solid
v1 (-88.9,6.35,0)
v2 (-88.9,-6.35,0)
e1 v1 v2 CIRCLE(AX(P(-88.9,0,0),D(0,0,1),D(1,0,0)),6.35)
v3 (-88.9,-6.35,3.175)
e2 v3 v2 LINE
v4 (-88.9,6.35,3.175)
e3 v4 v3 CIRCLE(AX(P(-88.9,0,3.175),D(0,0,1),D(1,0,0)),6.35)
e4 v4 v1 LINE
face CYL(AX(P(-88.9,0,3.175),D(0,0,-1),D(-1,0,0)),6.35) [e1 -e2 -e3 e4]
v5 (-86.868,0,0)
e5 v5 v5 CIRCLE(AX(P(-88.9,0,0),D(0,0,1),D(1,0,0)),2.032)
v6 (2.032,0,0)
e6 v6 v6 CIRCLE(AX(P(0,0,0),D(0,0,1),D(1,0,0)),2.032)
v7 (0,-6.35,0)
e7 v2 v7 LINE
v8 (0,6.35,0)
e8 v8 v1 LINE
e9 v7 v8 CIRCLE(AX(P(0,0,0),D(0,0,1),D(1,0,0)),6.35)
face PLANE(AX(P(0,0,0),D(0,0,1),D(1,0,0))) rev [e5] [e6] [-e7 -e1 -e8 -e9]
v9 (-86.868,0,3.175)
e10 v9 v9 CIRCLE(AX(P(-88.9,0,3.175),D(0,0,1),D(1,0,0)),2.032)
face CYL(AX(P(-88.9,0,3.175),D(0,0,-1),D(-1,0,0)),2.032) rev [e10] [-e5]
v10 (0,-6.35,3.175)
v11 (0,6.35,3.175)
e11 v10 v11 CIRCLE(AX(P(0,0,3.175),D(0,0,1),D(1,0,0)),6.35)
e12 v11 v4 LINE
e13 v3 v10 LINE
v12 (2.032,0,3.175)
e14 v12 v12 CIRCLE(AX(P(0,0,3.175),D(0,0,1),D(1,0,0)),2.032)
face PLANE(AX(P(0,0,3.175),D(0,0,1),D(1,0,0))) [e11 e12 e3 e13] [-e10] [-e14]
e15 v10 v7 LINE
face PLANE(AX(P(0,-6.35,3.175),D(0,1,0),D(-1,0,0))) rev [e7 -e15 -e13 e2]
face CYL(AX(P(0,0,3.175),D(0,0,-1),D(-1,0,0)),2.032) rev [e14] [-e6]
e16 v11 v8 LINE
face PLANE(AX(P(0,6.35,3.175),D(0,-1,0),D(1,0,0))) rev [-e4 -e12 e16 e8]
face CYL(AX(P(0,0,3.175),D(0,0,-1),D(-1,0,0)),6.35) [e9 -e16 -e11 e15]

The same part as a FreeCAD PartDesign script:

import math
import FreeCAD as App
import Part
import Sketcher
from FreeCAD import Vector
Q = App.Units.Quantity

doc = App.newDocument("Part")
body = doc.addObject("PartDesign::Body", "Body")

sketch1 = body.newObject("Sketcher::SketchObject", "Sketch")
sketch1.AttachmentSupport = (doc.getObject("XY_Plane"), [""])
sketch1.MapMode = "FlatFace"
sketch1.addGeometry([
    Part.LineSegment(Vector(-88.9, -6.3, 0), Vector(0, -6.3, 0)),
    Part.ArcOfCircle(Part.Circle(Vector(0, 0, 0), Vector(0, 0, 1), 6.3), math.radians(-90), math.radians(90)),
    Part.LineSegment(Vector(0, 6.3, 0), Vector(-88.9, 6.3, 0)),
    Part.ArcOfCircle(Part.Circle(Vector(-88.9, 0, 0), Vector(0, 0, 1), 6.3), math.radians(90), math.radians(270)),
    Part.Circle(Vector(0, 0, 0), Vector(0, 0, 1), 2),
    Part.Circle(Vector(-88.9, 0, 0), Vector(0, 0, 1), 2),
], False)
sketch1.addConstraint([
    Sketcher.Constraint("Tangent", 0, 2, 1, 1),
    Sketcher.Constraint("Tangent", 1, 2, 2, 1),
    Sketcher.Constraint("Tangent", 2, 2, 3, 1),
    Sketcher.Constraint("Tangent", 3, 2, 0, 1),
    Sketcher.Constraint("Horizontal", 0),
    Sketcher.Constraint("Horizontal", 2),
    Sketcher.Constraint("Coincident", 1, 3, -1, 1),
    Sketcher.Constraint("Coincident", 4, 3, -1, 1),
    Sketcher.Constraint("Coincident", 5, 3, 3, 3),
    Sketcher.Constraint("Equal", 4, 5),
    Sketcher.Constraint("Diameter", 4, Q("0.16 in")),
    Sketcher.Constraint("Radius", 1, Q("0.25 in")),
    Sketcher.Constraint("DistanceX", 0, 1, 0, 2, Q("3.5 in")),
])
pad1 = body.newObject("PartDesign::Pad", "Pad")
pad1.Profile = sketch1
pad1.Length = Q("0.125 in")

doc.recompute()
